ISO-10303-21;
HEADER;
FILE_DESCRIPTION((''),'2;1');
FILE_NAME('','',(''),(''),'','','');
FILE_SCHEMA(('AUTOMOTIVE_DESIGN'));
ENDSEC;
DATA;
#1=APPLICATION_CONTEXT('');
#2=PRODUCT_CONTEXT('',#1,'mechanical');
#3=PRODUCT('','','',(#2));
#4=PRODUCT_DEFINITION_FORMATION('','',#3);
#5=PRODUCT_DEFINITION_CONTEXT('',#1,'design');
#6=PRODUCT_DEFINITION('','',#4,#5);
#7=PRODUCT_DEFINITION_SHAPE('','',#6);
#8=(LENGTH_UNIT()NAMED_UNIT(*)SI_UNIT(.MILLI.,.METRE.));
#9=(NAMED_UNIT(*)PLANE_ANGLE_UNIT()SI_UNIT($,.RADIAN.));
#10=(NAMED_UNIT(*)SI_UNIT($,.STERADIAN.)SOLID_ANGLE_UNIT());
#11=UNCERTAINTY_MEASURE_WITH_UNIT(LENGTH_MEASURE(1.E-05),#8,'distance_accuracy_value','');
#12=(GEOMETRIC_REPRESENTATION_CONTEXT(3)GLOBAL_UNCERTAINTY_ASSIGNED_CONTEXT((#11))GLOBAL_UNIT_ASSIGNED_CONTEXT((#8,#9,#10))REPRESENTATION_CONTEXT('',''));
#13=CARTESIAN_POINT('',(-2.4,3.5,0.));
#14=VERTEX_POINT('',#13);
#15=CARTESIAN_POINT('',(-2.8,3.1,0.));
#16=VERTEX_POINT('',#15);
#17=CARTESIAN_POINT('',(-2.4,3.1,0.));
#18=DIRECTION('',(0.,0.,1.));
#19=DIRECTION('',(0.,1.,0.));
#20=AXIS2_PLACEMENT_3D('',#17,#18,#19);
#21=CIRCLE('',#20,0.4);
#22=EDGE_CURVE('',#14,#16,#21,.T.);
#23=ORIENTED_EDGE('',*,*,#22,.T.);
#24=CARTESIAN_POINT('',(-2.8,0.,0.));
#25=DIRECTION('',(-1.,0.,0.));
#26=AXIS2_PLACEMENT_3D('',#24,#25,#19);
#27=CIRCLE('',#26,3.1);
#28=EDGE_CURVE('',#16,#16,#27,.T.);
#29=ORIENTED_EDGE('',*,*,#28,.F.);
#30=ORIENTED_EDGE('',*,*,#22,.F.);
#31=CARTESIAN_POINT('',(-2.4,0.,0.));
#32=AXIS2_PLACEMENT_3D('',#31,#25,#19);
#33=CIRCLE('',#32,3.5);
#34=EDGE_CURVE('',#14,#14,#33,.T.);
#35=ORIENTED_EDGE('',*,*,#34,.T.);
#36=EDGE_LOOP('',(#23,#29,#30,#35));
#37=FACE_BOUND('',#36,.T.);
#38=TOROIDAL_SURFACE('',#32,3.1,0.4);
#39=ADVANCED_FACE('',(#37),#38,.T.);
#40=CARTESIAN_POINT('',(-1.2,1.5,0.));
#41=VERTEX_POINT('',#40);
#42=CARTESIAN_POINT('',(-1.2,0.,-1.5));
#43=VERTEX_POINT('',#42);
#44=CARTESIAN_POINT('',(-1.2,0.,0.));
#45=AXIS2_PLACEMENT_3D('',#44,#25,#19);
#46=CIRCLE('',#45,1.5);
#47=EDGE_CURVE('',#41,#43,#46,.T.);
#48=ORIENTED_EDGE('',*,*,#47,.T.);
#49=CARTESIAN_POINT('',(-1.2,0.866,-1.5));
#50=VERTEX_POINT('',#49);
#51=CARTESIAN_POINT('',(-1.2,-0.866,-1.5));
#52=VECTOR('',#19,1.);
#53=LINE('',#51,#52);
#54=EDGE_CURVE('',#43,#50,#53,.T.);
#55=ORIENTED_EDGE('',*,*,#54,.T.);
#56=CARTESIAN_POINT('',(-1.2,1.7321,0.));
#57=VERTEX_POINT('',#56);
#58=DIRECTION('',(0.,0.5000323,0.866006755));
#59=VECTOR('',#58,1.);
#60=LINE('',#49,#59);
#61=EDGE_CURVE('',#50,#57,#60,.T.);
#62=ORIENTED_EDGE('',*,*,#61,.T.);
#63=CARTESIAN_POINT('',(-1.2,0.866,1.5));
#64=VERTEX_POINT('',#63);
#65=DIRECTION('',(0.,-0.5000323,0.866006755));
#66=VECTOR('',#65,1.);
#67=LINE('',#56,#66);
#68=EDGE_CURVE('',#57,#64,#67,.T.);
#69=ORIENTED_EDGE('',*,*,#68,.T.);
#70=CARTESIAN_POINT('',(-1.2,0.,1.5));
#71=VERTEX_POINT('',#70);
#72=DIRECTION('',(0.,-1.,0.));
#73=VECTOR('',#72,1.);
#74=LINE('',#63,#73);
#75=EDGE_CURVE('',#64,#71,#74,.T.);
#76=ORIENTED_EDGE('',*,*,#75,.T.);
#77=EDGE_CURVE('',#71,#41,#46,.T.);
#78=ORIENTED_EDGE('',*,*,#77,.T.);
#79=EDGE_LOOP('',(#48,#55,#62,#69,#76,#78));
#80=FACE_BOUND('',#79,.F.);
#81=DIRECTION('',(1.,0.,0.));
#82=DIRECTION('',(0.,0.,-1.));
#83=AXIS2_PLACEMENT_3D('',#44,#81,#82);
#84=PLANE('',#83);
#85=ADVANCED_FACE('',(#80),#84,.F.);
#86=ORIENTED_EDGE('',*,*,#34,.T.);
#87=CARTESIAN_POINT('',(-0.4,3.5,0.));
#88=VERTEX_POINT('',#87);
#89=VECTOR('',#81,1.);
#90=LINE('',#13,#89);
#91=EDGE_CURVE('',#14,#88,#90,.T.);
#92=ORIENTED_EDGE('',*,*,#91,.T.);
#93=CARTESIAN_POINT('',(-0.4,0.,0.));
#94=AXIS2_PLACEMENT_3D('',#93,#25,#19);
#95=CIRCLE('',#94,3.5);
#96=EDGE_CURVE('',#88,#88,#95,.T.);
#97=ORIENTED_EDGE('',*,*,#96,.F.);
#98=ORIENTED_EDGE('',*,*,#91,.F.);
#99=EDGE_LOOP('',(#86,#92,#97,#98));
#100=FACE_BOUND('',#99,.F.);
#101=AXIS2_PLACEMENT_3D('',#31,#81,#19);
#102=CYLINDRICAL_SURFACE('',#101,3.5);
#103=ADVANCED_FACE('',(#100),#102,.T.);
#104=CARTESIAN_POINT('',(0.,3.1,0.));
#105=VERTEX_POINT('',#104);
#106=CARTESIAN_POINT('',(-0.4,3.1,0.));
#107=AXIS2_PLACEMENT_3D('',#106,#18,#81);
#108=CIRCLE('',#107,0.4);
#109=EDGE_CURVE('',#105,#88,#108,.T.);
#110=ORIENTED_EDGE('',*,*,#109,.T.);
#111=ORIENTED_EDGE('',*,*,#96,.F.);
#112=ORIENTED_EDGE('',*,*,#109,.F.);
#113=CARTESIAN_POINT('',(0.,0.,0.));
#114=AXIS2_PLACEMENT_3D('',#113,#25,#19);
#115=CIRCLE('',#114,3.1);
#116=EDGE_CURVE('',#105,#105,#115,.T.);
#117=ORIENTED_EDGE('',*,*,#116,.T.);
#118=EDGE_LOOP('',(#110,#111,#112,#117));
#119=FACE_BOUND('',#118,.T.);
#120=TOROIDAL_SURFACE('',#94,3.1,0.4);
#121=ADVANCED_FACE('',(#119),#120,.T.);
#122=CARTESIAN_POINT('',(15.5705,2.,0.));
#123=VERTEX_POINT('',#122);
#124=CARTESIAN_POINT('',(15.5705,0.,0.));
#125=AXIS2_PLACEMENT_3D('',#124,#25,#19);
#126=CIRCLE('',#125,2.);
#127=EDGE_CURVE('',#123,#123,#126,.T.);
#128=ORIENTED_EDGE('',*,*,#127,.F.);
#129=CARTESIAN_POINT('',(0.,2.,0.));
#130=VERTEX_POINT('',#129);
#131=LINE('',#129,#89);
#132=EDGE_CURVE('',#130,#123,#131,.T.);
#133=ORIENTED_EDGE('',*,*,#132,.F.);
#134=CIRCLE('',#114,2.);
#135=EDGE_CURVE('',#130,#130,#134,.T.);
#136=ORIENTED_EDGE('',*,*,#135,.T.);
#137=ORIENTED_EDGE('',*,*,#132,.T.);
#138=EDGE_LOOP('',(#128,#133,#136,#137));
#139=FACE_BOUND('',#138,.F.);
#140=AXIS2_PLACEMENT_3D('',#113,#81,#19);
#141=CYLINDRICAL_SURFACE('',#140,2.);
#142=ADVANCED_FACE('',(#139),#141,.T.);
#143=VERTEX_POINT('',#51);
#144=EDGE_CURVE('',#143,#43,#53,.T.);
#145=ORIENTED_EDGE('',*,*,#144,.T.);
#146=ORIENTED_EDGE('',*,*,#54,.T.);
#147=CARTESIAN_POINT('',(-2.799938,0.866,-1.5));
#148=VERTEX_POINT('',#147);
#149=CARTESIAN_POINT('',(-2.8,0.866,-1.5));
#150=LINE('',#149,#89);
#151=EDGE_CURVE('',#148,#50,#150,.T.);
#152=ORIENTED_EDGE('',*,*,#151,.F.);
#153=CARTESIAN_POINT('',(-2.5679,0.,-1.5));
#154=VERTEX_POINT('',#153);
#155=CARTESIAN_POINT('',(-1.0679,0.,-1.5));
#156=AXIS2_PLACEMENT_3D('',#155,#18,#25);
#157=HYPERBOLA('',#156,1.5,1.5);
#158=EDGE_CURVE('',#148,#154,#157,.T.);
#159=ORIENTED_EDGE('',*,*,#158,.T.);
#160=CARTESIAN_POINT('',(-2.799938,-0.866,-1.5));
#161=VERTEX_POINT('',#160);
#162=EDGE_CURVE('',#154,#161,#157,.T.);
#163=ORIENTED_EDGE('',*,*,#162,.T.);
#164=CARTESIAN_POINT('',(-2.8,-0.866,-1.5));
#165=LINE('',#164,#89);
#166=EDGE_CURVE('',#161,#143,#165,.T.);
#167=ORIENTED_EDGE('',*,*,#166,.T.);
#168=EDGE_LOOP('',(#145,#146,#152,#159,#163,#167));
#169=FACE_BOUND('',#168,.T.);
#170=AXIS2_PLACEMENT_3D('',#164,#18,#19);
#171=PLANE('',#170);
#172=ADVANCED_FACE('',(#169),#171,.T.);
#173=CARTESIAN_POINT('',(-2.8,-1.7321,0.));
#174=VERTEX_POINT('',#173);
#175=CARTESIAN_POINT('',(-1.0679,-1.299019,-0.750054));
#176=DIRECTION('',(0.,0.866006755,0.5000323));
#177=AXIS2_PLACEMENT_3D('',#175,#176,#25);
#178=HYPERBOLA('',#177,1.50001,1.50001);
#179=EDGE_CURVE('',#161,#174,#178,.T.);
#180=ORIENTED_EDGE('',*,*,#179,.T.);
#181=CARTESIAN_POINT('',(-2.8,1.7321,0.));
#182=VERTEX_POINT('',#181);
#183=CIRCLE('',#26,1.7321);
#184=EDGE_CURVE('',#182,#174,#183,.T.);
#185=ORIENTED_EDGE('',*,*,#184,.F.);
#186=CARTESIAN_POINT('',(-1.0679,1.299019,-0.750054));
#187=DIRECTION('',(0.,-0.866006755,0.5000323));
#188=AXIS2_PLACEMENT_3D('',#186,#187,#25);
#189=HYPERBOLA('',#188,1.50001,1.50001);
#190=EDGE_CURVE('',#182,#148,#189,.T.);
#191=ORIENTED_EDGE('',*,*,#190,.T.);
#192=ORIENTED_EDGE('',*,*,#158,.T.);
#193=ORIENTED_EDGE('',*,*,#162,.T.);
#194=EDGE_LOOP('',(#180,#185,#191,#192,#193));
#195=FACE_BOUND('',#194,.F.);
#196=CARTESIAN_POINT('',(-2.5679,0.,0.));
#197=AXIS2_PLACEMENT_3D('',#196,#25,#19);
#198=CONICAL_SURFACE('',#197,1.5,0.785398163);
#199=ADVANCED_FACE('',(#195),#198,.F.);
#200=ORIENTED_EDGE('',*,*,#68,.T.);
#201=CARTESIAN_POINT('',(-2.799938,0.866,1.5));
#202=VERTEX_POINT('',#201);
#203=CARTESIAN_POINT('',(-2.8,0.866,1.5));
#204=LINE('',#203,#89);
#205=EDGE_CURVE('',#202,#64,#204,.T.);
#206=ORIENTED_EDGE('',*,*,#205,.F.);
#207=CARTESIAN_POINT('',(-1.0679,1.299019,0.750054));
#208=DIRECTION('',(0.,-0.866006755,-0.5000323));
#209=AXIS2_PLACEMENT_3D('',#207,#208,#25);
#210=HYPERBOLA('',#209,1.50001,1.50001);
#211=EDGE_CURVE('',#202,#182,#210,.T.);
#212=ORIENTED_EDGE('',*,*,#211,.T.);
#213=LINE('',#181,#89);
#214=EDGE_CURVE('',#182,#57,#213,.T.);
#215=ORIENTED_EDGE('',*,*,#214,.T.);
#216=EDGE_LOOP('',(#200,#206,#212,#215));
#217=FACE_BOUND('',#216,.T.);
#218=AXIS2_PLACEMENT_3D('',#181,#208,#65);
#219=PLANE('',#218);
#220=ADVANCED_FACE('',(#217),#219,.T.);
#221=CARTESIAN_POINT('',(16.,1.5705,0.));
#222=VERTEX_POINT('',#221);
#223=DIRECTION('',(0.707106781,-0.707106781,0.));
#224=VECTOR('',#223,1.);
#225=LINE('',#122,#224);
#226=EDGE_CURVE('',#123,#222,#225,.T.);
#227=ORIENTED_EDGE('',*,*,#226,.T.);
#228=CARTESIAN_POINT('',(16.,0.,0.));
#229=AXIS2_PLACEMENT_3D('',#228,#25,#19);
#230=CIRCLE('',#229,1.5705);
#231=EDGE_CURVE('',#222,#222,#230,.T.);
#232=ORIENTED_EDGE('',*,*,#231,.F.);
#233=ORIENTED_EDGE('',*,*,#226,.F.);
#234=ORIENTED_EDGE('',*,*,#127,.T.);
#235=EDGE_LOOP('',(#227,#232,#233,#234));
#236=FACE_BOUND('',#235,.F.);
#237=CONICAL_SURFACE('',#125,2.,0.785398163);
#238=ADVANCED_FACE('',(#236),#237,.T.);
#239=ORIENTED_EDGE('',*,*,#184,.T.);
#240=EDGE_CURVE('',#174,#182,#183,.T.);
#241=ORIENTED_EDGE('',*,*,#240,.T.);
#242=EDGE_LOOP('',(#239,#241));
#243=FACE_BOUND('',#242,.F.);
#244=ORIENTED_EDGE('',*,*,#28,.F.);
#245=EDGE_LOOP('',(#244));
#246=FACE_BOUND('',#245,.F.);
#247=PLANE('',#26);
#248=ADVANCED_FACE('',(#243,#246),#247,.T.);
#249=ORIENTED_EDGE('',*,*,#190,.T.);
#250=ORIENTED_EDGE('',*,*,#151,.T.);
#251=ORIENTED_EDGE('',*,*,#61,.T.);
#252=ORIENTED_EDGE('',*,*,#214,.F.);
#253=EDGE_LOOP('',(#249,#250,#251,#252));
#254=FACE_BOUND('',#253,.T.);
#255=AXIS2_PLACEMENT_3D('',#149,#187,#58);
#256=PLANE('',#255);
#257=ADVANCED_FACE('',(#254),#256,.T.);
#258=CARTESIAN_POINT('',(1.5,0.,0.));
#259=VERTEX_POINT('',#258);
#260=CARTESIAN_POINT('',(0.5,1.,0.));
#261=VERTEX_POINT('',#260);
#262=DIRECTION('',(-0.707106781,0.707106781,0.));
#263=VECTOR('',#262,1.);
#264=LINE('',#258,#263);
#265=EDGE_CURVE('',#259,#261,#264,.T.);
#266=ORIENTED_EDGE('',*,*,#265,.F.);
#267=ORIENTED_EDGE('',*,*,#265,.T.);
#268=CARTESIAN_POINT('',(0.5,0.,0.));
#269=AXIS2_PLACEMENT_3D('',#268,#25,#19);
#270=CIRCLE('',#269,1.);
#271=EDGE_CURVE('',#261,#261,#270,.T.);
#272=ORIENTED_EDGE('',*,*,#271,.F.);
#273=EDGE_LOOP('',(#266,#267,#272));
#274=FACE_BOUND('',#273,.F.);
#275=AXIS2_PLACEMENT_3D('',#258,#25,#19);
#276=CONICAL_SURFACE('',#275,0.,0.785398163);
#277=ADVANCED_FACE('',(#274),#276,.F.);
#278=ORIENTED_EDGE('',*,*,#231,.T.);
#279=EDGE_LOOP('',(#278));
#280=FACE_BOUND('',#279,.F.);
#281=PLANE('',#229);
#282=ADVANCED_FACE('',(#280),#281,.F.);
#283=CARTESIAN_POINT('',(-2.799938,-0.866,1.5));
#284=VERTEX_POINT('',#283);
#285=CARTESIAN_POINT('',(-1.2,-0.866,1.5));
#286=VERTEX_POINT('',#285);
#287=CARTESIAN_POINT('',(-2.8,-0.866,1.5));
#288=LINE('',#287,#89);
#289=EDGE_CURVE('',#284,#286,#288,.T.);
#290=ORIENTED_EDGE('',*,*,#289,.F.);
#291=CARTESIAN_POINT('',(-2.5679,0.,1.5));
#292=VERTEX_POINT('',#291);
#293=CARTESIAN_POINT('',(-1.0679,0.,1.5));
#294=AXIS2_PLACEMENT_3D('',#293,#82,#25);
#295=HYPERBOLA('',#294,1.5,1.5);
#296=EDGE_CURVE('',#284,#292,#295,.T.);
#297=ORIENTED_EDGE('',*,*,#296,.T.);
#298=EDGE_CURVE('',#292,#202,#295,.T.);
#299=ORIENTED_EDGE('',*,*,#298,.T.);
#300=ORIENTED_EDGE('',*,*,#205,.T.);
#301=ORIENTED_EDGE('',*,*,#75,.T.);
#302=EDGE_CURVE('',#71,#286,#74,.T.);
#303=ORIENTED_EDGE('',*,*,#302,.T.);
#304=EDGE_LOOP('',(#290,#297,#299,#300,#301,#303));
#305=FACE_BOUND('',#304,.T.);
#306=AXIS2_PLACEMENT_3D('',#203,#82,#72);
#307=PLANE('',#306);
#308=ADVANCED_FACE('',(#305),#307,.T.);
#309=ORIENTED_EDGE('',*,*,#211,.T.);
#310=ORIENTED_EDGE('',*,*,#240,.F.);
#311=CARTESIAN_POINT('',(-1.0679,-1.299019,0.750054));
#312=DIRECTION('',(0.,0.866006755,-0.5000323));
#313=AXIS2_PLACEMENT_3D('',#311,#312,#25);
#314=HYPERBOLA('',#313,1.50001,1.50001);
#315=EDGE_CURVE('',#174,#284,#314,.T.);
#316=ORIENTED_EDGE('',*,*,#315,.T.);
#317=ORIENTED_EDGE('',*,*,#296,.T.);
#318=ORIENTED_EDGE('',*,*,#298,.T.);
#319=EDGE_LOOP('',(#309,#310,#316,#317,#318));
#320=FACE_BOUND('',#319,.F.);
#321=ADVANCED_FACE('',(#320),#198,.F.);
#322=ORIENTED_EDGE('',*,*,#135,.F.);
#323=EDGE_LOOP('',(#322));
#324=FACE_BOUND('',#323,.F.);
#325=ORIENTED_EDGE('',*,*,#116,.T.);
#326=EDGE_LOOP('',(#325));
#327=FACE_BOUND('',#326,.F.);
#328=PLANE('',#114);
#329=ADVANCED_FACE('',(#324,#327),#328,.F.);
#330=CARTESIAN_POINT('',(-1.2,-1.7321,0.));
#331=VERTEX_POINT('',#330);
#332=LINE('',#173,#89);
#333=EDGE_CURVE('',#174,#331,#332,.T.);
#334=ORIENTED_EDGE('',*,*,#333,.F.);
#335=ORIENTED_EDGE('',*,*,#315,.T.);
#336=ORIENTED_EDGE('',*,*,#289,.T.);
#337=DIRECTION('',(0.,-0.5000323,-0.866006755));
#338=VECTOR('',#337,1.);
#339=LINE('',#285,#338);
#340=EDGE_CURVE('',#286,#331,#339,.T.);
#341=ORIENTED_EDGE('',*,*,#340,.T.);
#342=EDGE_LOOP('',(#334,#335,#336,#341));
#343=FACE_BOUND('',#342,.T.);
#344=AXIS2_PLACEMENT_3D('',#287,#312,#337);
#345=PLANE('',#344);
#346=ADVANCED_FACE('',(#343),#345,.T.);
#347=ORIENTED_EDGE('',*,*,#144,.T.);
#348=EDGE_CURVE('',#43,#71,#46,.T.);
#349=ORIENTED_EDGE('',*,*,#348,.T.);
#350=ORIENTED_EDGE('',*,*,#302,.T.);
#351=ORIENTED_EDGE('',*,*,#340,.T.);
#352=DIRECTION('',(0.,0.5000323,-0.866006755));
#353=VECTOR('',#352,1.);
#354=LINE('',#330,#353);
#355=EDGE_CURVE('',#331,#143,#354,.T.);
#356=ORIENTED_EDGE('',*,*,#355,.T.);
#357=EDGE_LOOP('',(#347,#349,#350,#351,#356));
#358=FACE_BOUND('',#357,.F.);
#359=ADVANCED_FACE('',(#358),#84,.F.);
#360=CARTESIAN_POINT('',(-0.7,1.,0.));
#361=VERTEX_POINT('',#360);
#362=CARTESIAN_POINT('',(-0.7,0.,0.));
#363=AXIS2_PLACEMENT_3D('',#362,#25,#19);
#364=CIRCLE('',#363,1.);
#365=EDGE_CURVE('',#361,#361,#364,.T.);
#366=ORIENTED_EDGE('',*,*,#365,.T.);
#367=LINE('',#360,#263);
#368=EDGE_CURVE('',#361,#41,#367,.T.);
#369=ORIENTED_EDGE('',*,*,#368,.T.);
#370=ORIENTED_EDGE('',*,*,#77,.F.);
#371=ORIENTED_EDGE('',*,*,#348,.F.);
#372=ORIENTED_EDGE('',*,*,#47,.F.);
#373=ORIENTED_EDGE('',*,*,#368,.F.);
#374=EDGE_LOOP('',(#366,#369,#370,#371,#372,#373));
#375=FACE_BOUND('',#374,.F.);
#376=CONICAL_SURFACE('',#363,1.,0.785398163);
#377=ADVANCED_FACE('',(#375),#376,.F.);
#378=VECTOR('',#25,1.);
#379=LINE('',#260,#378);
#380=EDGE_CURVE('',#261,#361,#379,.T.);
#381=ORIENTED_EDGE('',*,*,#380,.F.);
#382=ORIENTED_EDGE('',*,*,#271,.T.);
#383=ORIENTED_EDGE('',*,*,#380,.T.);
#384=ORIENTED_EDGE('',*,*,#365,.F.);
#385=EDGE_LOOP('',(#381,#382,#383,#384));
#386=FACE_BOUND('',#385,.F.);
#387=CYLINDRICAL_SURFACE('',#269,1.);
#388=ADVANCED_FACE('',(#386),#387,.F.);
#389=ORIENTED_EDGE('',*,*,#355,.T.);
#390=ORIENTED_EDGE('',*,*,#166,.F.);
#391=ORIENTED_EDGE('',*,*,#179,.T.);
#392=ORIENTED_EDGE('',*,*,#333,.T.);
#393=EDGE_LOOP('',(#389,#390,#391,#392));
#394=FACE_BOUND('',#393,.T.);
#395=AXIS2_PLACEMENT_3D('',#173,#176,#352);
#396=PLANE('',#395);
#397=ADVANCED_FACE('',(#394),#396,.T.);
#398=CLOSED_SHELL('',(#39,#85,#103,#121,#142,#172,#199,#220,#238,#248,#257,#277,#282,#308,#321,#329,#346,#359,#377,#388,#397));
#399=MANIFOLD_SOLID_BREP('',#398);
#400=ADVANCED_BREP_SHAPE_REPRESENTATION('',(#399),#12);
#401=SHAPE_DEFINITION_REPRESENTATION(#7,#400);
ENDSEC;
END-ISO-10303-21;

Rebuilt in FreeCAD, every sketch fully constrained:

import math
import FreeCAD as App
import Part
import Sketcher
from FreeCAD import Vector
Q = App.Units.Quantity

doc = App.newDocument("Part")
body = doc.addObject("PartDesign::Body", "Body")

sketch1 = body.newObject("Sketcher::SketchObject", "Sketch")
sketch1.AttachmentSupport = (doc.getObject("XY_Plane"), [""])
sketch1.MapMode = "FlatFace"
sketch1.addGeometry(Part.LineSegment(Vector(1.5, 0, 0), Vector(16, 0, 0)), False)
sketch1.addGeometry(Part.LineSegment(Vector(16, 0, 0), Vector(16, 1.57, 0)), False)
sketch1.addGeometry(Part.LineSegment(Vector(16, 1.57, 0), Vector(15.57, 2, 0)), False)
sketch1.addGeometry(Part.LineSegment(Vector(15.57, 2, 0), Vector(0, 2, 0)), False)
sketch1.addGeometry(Part.LineSegment(Vector(0, 2, 0), Vector(0, 3.1, 0)), False)
sketch1.addGeometry(Part.ArcOfCircle(Part.Circle(Vector(-0.4, 3.1, 0), Vector(0, 0, 1), 0.4), math.radians(0), math.radians(90)), False)
sketch1.addGeometry(Part.LineSegment(Vector(-0.4, 3.5, 0), Vector(-2.4, 3.5, 0)), False)
sketch1.addGeometry(Part.ArcOfCircle(Part.Circle(Vector(-2.4, 3.1, 0), Vector(0, 0, 1), 0.4), math.radians(90), math.radians(180)), False)
sketch1.addGeometry(Part.LineSegment(Vector(-2.8, 3.1, 0), Vector(-2.8, 1.73, 0)), False)
sketch1.addGeometry(Part.LineSegment(Vector(-2.8, 1.73, 0), Vector(-2.57, 1.5, 0)), False)
sketch1.addGeometry(Part.LineSegment(Vector(-2.57, 1.5, 0), Vector(-1.2, 1.5, 0)), False)
sketch1.addGeometry(Part.LineSegment(Vector(-1.2, 1.5, 0), Vector(-0.7, 1, 0)), False)
sketch1.addGeometry(Part.LineSegment(Vector(-0.7, 1, 0), Vector(0.5, 1, 0)), False)
sketch1.addGeometry(Part.LineSegment(Vector(0.5, 1, 0), Vector(1.5, 0, 0)), False)
sketch1.addConstraint(Sketcher.Constraint("Coincident", 0, 2, 1, 1))
sketch1.addConstraint(Sketcher.Constraint("Coincident", 1, 2, 2, 1))
sketch1.addConstraint(Sketcher.Constraint("Coincident", 2, 2, 3, 1))
sketch1.addConstraint(Sketcher.Constraint("Coincident", 3, 2, 4, 1))
sketch1.addConstraint(Sketcher.Constraint("Tangent", 4, 2, 5, 1))
sketch1.addConstraint(Sketcher.Constraint("Tangent", 5, 2, 6, 1))
sketch1.addConstraint(Sketcher.Constraint("Tangent", 6, 2, 7, 1))
sketch1.addConstraint(Sketcher.Constraint("Tangent", 7, 2, 8, 1))
sketch1.addConstraint(Sketcher.Constraint("Coincident", 8, 2, 9, 1))
sketch1.addConstraint(Sketcher.Constraint("Coincident", 9, 2, 10, 1))
sketch1.addConstraint(Sketcher.Constraint("Coincident", 10, 2, 11, 1))
sketch1.addConstraint(Sketcher.Constraint("Coincident", 11, 2, 12, 1))
sketch1.addConstraint(Sketcher.Constraint("Coincident", 12, 2, 13, 1))
sketch1.addConstraint(Sketcher.Constraint("Coincident", 13, 2, 0, 1))
sketch1.addConstraint(Sketcher.Constraint("Horizontal", 0))
sketch1.addConstraint(Sketcher.Constraint("Vertical", 1))
sketch1.addConstraint(Sketcher.Constraint("Horizontal", 3))
sketch1.addConstraint(Sketcher.Constraint("Vertical", 4))
sketch1.addConstraint(Sketcher.Constraint("Horizontal", 6))
sketch1.addConstraint(Sketcher.Constraint("Vertical", 8))
sketch1.addConstraint(Sketcher.Constraint("Horizontal", 10))
sketch1.addConstraint(Sketcher.Constraint("Horizontal", 12))
sketch1.addConstraint(Sketcher.Constraint("Equal", 5, 7))
sketch1.addConstraint(Sketcher.Constraint("PointOnObject", 0, 2, -1))
sketch1.addConstraint(Sketcher.Constraint("PointOnObject", 3, 2, -2))
sketch1.addConstraint(Sketcher.Constraint("Parallel", 2, 9))
sketch1.addConstraint(Sketcher.Constraint("Parallel", 9, 11))
sketch1.addConstraint(Sketcher.Constraint("Parallel", 11, 13))
sketch1.addConstraint(Sketcher.Constraint("Equal", 10, 8))
sketch1.addConstraint(Sketcher.Constraint("Radius", 5, Q("0.4 mm")))
sketch1.addConstraint(Sketcher.Constraint("DistanceX", 6, 2, 6, 1, Q("2 mm")))
sketch1.addConstraint(Sketcher.Constraint("Angle", 2, Q("135 deg")))
sketch1.addConstraint(Sketcher.Constraint("DistanceX", 0, 1, 0, 2, Q("14.5 mm")))
sketch1.addConstraint(Sketcher.Constraint("DistanceX", 12, 1, 12, 2, Q("1.2 mm")))
sketch1.addConstraint(Sketcher.Constraint("DistanceY", 4, 1, 4, 2, Q("1.1 mm")))
sketch1.addConstraint(Sketcher.Constraint("DistanceX", -1, 1, 0, 2, Q("16 mm")))
sketch1.addConstraint(Sketcher.Constraint("DistanceY", -1, 1, 11, 2, Q("1 mm")))
sketch1.addConstraint(Sketcher.Constraint("DistanceY", 9, 2, 6, 2, Q("2 mm")))
sketch1.addConstraint(Sketcher.Constraint("DistanceX", 10, 1, 10, 2, Q("1.368 mm")))
sketch1.addConstraint(Sketcher.Constraint("DistanceX", 3, 2, 3, 1, Q("15.5705 mm")))
revolution = body.newObject("PartDesign::Revolution", "Revolution")
revolution.Profile = sketch1
revolution.ReferenceAxis = (sketch1, ["H_Axis"])
revolution.Angle = 360

sketch2 = body.newObject("Sketcher::SketchObject", "Sketch001")
sketch2.AttachmentSupport = (doc.getObject("YZ_Plane"), [""])
sketch2.MapMode = "FlatFace"
sketch2.AttachmentOffset = App.Placement(Vector(0, 0, -2.8), App.Rotation())
sketch2.addGeometry(Part.LineSegment(Vector(0.9, 1.5, 0), Vector(-0.9, 1.5, 0)), False)
sketch2.addGeometry(Part.LineSegment(Vector(-0.9, 1.5, 0), Vector(-1.7, 0, 0)), False)
sketch2.addGeometry(Part.LineSegment(Vector(-1.7, 0, 0), Vector(-0.9, -1.5, 0)), False)
sketch2.addGeometry(Part.LineSegment(Vector(-0.9, -1.5, 0), Vector(0.9, -1.5, 0)), False)
sketch2.addGeometry(Part.LineSegment(Vector(0.9, -1.5, 0), Vector(1.7, 0, 0)), False)
sketch2.addGeometry(Part.LineSegment(Vector(1.7, 0, 0), Vector(0.9, 1.5, 0)), False)
sketch2.addConstraint(Sketcher.Constraint("Coincident", 0, 2, 1, 1))
sketch2.addConstraint(Sketcher.Constraint("Coincident", 1, 2, 2, 1))
sketch2.addConstraint(Sketcher.Constraint("Coincident", 2, 2, 3, 1))
sketch2.addConstraint(Sketcher.Constraint("Coincident", 3, 2, 4, 1))
sketch2.addConstraint(Sketcher.Constraint("Coincident", 4, 2, 5, 1))
sketch2.addConstraint(Sketcher.Constraint("Coincident", 5, 2, 0, 1))
sketch2.addConstraint(Sketcher.Constraint("Horizontal", 0))
sketch2.addConstraint(Sketcher.Constraint("Horizontal", 3))
sketch2.addConstraint(Sketcher.Constraint("Symmetric", 0, 2, 3, 2, -1, 1))
sketch2.addConstraint(Sketcher.Constraint("Symmetric", 1, 2, 4, 2, -1, 1))
sketch2.addConstraint(Sketcher.Constraint("PointOnObject", 1, 2, -1))
sketch2.addConstraint(Sketcher.Constraint("Parallel", 2, 5))
sketch2.addConstraint(Sketcher.Constraint("Vertical", 0, 2, 2, 2))
sketch2.addConstraint(Sketcher.Constraint("DistanceY", 2, 2, 0, 2, Q("3 mm")))
sketch2.addConstraint(Sketcher.Constraint("DistanceX", 0, 2, 0, 1, Q("1.732 mm")))
sketch2.addConstraint(Sketcher.Constraint("Distance", 1, Q("1.732 mm")))
pocket1 = body.newObject("PartDesign::Pocket", "Pocket")
pocket1.Profile = sketch2
pocket1.Length = 1.6
pocket1.Reversed = True

doc.recompute()
